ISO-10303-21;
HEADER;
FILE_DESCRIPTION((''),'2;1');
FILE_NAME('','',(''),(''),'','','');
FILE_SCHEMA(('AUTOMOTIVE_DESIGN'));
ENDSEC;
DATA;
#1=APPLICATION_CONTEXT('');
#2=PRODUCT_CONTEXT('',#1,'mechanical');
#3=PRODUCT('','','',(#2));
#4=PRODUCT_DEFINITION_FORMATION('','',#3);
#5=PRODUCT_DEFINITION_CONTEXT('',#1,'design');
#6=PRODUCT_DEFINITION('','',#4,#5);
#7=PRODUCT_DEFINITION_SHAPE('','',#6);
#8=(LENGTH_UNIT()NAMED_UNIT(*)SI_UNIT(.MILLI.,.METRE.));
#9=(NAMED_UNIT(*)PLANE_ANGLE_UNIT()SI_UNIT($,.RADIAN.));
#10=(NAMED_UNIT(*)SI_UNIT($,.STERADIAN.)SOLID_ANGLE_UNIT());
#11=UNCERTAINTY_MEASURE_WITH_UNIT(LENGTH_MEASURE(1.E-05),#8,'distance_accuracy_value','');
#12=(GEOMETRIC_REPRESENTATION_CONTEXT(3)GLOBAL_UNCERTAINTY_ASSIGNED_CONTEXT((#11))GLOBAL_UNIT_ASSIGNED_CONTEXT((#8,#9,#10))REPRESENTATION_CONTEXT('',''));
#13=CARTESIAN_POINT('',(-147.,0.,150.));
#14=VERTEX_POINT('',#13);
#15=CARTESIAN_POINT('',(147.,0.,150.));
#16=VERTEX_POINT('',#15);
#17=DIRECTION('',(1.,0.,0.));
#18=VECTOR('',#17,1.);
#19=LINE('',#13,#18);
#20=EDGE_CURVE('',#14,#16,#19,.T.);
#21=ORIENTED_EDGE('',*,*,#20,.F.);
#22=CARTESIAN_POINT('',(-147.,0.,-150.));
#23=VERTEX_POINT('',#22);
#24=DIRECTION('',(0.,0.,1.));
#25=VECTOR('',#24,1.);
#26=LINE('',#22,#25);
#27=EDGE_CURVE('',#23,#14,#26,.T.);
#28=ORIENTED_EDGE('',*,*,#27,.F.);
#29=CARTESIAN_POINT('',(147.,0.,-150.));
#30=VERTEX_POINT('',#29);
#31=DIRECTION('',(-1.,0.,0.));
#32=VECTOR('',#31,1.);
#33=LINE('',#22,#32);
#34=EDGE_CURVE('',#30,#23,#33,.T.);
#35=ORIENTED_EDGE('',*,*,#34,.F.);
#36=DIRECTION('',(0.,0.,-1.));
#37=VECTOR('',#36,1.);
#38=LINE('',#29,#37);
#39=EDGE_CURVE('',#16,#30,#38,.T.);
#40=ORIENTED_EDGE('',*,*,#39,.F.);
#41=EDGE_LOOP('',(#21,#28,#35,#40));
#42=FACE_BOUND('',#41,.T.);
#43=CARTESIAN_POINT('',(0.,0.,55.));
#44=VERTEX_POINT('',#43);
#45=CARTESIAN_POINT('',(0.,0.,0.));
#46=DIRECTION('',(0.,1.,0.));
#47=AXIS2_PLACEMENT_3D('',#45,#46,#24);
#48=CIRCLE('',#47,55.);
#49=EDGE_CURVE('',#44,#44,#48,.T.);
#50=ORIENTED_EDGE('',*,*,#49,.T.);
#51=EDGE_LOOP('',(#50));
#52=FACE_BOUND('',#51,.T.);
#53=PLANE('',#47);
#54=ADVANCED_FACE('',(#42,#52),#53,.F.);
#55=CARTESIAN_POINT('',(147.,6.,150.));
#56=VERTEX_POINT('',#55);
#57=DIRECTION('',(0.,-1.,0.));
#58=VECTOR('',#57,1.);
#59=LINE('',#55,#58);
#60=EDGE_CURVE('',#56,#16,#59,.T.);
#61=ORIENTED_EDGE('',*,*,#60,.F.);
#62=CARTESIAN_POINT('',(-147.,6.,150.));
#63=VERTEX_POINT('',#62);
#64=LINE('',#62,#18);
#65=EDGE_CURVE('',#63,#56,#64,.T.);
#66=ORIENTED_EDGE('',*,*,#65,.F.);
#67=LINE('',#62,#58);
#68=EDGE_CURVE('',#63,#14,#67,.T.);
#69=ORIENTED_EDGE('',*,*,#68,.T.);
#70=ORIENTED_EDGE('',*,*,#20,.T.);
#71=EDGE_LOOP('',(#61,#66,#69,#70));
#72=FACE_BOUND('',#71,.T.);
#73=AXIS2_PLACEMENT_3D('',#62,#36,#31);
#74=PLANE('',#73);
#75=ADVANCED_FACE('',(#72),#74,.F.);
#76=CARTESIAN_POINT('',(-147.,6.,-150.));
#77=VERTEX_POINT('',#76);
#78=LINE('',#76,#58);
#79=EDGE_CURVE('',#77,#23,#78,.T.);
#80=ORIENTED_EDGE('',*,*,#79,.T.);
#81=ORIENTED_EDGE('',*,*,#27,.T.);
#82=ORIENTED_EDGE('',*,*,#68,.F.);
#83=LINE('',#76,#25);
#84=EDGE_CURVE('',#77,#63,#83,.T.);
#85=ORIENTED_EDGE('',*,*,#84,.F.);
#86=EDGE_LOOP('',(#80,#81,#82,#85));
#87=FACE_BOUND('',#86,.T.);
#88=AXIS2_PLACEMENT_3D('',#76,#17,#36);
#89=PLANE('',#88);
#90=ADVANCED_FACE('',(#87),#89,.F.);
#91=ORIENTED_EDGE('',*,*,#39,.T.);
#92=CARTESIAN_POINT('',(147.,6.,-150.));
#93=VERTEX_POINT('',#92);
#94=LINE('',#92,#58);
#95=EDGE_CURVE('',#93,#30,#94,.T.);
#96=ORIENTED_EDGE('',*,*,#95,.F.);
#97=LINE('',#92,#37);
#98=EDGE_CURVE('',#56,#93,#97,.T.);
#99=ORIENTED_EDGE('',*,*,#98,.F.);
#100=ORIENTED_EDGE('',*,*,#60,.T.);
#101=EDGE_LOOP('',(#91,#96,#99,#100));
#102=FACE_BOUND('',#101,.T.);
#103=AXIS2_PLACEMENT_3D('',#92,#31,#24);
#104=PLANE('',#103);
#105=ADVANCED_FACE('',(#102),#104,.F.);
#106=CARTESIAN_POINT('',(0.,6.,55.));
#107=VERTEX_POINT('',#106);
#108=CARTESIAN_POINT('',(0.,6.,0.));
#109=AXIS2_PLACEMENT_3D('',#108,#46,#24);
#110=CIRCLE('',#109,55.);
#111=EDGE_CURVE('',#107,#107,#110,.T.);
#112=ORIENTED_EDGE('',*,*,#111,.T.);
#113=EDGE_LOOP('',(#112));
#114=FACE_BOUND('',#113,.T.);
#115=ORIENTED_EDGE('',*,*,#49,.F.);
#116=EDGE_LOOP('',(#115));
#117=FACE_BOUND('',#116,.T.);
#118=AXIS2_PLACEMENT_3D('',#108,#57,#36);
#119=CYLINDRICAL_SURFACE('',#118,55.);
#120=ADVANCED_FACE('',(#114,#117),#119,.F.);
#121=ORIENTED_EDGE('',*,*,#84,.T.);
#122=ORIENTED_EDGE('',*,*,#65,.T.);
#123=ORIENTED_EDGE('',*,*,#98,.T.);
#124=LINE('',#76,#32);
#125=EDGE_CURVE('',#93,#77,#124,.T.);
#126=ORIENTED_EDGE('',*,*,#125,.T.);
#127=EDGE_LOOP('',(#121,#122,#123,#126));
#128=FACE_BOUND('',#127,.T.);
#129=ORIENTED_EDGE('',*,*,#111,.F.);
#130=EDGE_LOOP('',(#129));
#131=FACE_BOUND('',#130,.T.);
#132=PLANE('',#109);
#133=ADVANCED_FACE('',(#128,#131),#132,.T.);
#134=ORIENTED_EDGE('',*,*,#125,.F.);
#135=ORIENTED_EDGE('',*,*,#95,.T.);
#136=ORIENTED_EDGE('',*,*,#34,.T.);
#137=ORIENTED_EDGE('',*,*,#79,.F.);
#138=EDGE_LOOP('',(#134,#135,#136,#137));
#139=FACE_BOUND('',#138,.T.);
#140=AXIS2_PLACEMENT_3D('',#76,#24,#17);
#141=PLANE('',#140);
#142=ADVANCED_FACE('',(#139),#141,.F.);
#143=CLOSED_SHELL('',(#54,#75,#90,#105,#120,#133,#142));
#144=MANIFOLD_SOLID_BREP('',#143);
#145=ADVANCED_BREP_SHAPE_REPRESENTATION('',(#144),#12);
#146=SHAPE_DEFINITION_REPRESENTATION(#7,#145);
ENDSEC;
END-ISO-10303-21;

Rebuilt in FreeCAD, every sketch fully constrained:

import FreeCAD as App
import Part
import Sketcher

V = App.Vector
Q = App.Units.Quantity


def add_polygon(sketch, points):
    """Adds a closed chain of lines whose ends are joined by coincident constraints."""
    first, n = sketch.GeometryCount, len(points)
    for a, b in zip(points, points[1:] + points[:1]):
        sketch.addGeometry(Part.LineSegment(App.Vector(*a, 0), App.Vector(*b, 0)), False)
    for i in range(n):
        sketch.addConstraint(Sketcher.Constraint("Coincident", first + i, 2, first + (i + 1) % n, 1))

doc = App.newDocument("Part")
body = doc.addObject("PartDesign::Body", "Body")

# Sketch on XZ plane
sketch1 = body.newObject("Sketcher::SketchObject", "Sketch")
sketch1.AttachmentSupport = (doc.getObject("XZ_Plane"), [""])
sketch1.MapMode = "FlatFace"
add_polygon(sketch1, [(-147, -150), (-147, 150), (147, 150), (147, -150)])  # lines 0-3
sketch1.addGeometry(Part.Circle(V(0, 0, 0), V(0, 0, 1), 55), False)  # 4
sketch1.addConstraint(Sketcher.Constraint("Vertical", 0))
sketch1.addConstraint(Sketcher.Constraint("Horizontal", 1))
sketch1.addConstraint(Sketcher.Constraint("Vertical", 2))
sketch1.addConstraint(Sketcher.Constraint("Horizontal", 3))
sketch1.addConstraint(Sketcher.Constraint("Coincident", 4, 3, -1, 1))
sketch1.addConstraint(Sketcher.Constraint("Symmetric", 0, 2, 2, 2, -1, 1))
sketch1.addConstraint(Sketcher.Constraint("Diameter", 4, Q("110 mm")))
sketch1.addConstraint(Sketcher.Constraint("DistanceX", 1, 1, 1, 2, Q("294 mm")))
sketch1.addConstraint(Sketcher.Constraint("DistanceY", 0, 1, 0, 2, Q("300 mm")))
pad1 = body.newObject("PartDesign::Pad", "Pad")
pad1.Profile = sketch1
pad1.Length = 6
pad1.Reversed = True

doc.recompute()
